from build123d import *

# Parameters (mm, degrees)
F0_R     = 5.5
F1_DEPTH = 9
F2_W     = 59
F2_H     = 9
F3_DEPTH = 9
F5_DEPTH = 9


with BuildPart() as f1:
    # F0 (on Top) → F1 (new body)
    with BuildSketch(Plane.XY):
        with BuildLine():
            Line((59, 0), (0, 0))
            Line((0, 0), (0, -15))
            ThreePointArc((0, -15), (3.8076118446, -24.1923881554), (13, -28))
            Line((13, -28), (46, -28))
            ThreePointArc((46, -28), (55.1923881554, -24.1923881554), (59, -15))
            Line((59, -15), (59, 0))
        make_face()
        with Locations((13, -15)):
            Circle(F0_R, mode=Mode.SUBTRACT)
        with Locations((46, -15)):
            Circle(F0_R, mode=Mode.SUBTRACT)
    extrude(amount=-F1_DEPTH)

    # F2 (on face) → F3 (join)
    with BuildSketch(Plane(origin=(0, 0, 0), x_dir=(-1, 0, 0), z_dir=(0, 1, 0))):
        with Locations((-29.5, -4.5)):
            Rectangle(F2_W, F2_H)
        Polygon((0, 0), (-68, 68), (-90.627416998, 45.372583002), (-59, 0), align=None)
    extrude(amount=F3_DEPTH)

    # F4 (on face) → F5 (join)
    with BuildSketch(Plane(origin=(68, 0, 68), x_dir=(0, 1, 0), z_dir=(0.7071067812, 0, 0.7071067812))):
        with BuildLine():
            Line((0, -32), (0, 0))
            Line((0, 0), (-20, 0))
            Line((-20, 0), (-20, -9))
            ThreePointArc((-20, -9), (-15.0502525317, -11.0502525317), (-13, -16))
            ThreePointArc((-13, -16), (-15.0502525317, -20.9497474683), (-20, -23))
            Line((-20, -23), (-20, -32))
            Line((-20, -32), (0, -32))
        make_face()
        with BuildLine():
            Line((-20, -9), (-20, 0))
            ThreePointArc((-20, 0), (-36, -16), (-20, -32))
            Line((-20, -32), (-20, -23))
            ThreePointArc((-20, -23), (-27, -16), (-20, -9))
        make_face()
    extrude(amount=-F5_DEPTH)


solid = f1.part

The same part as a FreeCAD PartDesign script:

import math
import FreeCAD as App
import Part
import Sketcher

V = App.Vector
Q = App.Units.Quantity

doc = App.newDocument("Part")
body = doc.addObject("PartDesign::Body", "Body")

# Sketch on XY plane
sketch1 = body.newObject("Sketcher::SketchObject", "Sketch")
sketch1.AttachmentSupport = (doc.getObject("XY_Plane"), [""])
sketch1.MapMode = "FlatFace"
sketch1.addGeometry(Part.LineSegment(V(59, 0, 0), V(0, 0, 0)), False)
sketch1.addGeometry(Part.LineSegment(V(0, 0, 0), V(0, -15, 0)), False)
sketch1.addGeometry(Part.ArcOfCircle(Part.Circle(V(13, -15, 0), V(0, 0, 1), 13), math.radians(180), math.radians(270)), False)
sketch1.addGeometry(Part.LineSegment(V(13, -28, 0), V(46, -28, 0)), False)
sketch1.addGeometry(Part.ArcOfCircle(Part.Circle(V(46, -15, 0), V(0, 0, 1), 13), math.radians(-90), math.radians(0)), False)
sketch1.addGeometry(Part.LineSegment(V(59, -15, 0), V(59, 0, 0)), False)
sketch1.addGeometry(Part.Circle(V(13, -15, 0), V(0, 0, 1), 6), False)
sketch1.addGeometry(Part.Circle(V(46, -15, 0), V(0, 0, 1), 6), False)
sketch1.addConstraint(Sketcher.Constraint("Coincident", 0, 2, 1, 1))
sketch1.addConstraint(Sketcher.Constraint("Tangent", 1, 2, 2, 1))
sketch1.addConstraint(Sketcher.Constraint("Tangent", 2, 2, 3, 1))
sketch1.addConstraint(Sketcher.Constraint("Tangent", 3, 2, 4, 1))
sketch1.addConstraint(Sketcher.Constraint("Tangent", 4, 2, 5, 1))
sketch1.addConstraint(Sketcher.Constraint("Coincident", 5, 2, 0, 1))
sketch1.addConstraint(Sketcher.Constraint("Horizontal", 0))
sketch1.addConstraint(Sketcher.Constraint("Vertical", 1))
sketch1.addConstraint(Sketcher.Constraint("Horizontal", 3))
sketch1.addConstraint(Sketcher.Constraint("Vertical", 5))
sketch1.addConstraint(Sketcher.Constraint("Coincident", 0, 2, -1, 1))
sketch1.addConstraint(Sketcher.Constraint("Coincident", 6, 3, 2, 3))
sketch1.addConstraint(Sketcher.Constraint("Coincident", 7, 3, 4, 3))
sketch1.addConstraint(Sketcher.Constraint("Equal", 2, 4))
sketch1.addConstraint(Sketcher.Constraint("Equal", 6, 7))
sketch1.addConstraint(Sketcher.Constraint("Diameter", 6, 11.0))
sketch1.addConstraint(Sketcher.Constraint("Radius", 2, 13.0))
sketch1.addConstraint(Sketcher.Constraint("DistanceX", 0, 2, 0, 1, 59.0))
sketch1.addConstraint(Sketcher.Constraint("DistanceY", 1, 2, 1, 1, 15.0))
pad1 = body.newObject("PartDesign::Pad", "Pad")
pad1.Profile = sketch1
pad1.Length = 9
pad1.Reversed = True

# Sketch on XZ plane
sketch2 = body.newObject("Sketcher::SketchObject", "Sketch001")
sketch2.AttachmentSupport = (doc.getObject("XZ_Plane"), [""])
sketch2.MapMode = "FlatFace"
sketch2.addGeometry(Part.LineSegment(V(59, 0, 0), V(59, -9, 0)), False)
sketch2.addGeometry(Part.LineSegment(V(59, -9, 0), V(0, -9, 0)), False)
sketch2.addGeometry(Part.LineSegment(V(0, -9, 0), V(0, 0, 0)), False)
sketch2.addGeometry(Part.LineSegment(V(0, 0, 0), V(68, 68, 0)), False)
sketch2.addGeometry(Part.LineSegment(V(68, 68, 0), V(91, 45, 0)), False)
sketch2.addGeometry(Part.LineSegment(V(91, 45, 0), V(59, 0, 0)), False)
sketch2.addConstraint(Sketcher.Constraint("Coincident", 0, 2, 1, 1))
sketch2.addConstraint(Sketcher.Constraint("Coincident", 1, 2, 2, 1))
sketch2.addConstraint(Sketcher.Constraint("Coincident", 2, 2, 3, 1))
sketch2.addConstraint(Sketcher.Constraint("Coincident", 3, 2, 4, 1))
sketch2.addConstraint(Sketcher.Constraint("Coincident", 4, 2, 5, 1))
sketch2.addConstraint(Sketcher.Constraint("Coincident", 5, 2, 0, 1))
sketch2.addConstraint(Sketcher.Constraint("Vertical", 0))
sketch2.addConstraint(Sketcher.Constraint("Horizontal", 1))
sketch2.addConstraint(Sketcher.Constraint("Vertical", 2))
sketch2.addConstraint(Sketcher.Constraint("Coincident", 2, 2, -1, 1))
sketch2.addConstraint(Sketcher.Constraint("PointOnObject", 5, 2, -1))
sketch2.addConstraint(Sketcher.Constraint("Perpendicular", 3, 4))
sketch2.addConstraint(Sketcher.Constraint("DistanceX", 1, 2, 1, 1, 59.0))
sketch2.addConstraint(Sketcher.Constraint("DistanceY", 0, 2, 0, 1, 9.0))
sketch2.addConstraint(Sketcher.Constraint("Angle", 3, Q("45 deg")))
sketch2.addConstraint(Sketcher.Constraint("Distance", 4, 32.0))
sketch2.addConstraint(Sketcher.Constraint("DistanceX", -1, 1, 3, 2, 68.0))
pad2 = body.newObject("PartDesign::Pad", "Pad001")
pad2.Profile = sketch2
pad2.Length = 9
pad2.Reversed = True

# Sketch on an angled plane
sketch3 = body.newObject("Sketcher::SketchObject", "Sketch002")
sketch3.Placement = App.Placement(V(68, 0, 68), App.Rotation(V(0, 1, 0), V(-0.707106781, 0, 0.707106781), V(0.707106781, 0, 0.707106781), "ZXY"))
sketch3.addGeometry(Part.LineSegment(V(0, -32, 0), V(0, 0, 0)), False)
sketch3.addGeometry(Part.LineSegment(V(0, 0, 0), V(-20, 0, 0)), False)
sketch3.addGeometry(Part.ArcOfCircle(Part.Circle(V(-20, -16, 0), V(0, 0, 1), 16), math.radians(90), math.radians(270)), False)
sketch3.addGeometry(Part.LineSegment(V(-20, -32, 0), V(0, -32, 0)), False)
sketch3.addGeometry(Part.ArcOfCircle(Part.Circle(V(-20, -16, 0), V(0, 0, 1), 7), math.radians(0), math.radians(90)), False)
sketch3.addGeometry(Part.ArcOfCircle(Part.Circle(V(-20, -16, 0), V(0, 0, 1), 7), math.radians(-90), math.radians(0)), False)
sketch3.addGeometry(Part.ArcOfCircle(Part.Circle(V(-20, -16, 0), V(0, 0, 1), 7), math.radians(90), math.radians(270)), False)
sketch3.addConstraint(Sketcher.Constraint("Coincident", 0, 2, 1, 1))
sketch3.addConstraint(Sketcher.Constraint("Tangent", 1, 2, 2, 1))
sketch3.addConstraint(Sketcher.Constraint("Tangent", 2, 2, 3, 1))
sketch3.addConstraint(Sketcher.Constraint("Coincident", 3, 2, 0, 1))
sketch3.addConstraint(Sketcher.Constraint("Tangent", 4, 1, 5, 2))
sketch3.addConstraint(Sketcher.Constraint("Tangent", 5, 1, 6, 2))
sketch3.addConstraint(Sketcher.Constraint("Tangent", 6, 1, 4, 2))
sketch3.addConstraint(Sketcher.Constraint("Vertical", 0))
sketch3.addConstraint(Sketcher.Constraint("Horizontal", 1))
sketch3.addConstraint(Sketcher.Constraint("Horizontal", 3))
sketch3.addConstraint(Sketcher.Constraint("Coincident", 0, 2, -1, 1))
sketch3.addConstraint(Sketcher.Constraint("Coincident", 4, 3, 2, 3))
sketch3.addConstraint(Sketcher.Constraint("Horizontal", 6, 3, 4, 1))
sketch3.addConstraint(Sketcher.Constraint("Vertical", 2, 2, 5, 1))
sketch3.addConstraint(Sketcher.Constraint("Vertical", 5, 1, 6, 1))
sketch3.addConstraint(Sketcher.Constraint("Radius", 2, 16.0))
sketch3.addConstraint(Sketcher.Constraint("Radius", 4, 7.0))
sketch3.addConstraint(Sketcher.Constraint("DistanceX", 1, 2, 1, 1, 20.0))
pad3 = body.newObject("PartDesign::Pad", "Pad002")
pad3.Profile = sketch3
pad3.Length = 9
pad3.Reversed = True

doc.recompute()
